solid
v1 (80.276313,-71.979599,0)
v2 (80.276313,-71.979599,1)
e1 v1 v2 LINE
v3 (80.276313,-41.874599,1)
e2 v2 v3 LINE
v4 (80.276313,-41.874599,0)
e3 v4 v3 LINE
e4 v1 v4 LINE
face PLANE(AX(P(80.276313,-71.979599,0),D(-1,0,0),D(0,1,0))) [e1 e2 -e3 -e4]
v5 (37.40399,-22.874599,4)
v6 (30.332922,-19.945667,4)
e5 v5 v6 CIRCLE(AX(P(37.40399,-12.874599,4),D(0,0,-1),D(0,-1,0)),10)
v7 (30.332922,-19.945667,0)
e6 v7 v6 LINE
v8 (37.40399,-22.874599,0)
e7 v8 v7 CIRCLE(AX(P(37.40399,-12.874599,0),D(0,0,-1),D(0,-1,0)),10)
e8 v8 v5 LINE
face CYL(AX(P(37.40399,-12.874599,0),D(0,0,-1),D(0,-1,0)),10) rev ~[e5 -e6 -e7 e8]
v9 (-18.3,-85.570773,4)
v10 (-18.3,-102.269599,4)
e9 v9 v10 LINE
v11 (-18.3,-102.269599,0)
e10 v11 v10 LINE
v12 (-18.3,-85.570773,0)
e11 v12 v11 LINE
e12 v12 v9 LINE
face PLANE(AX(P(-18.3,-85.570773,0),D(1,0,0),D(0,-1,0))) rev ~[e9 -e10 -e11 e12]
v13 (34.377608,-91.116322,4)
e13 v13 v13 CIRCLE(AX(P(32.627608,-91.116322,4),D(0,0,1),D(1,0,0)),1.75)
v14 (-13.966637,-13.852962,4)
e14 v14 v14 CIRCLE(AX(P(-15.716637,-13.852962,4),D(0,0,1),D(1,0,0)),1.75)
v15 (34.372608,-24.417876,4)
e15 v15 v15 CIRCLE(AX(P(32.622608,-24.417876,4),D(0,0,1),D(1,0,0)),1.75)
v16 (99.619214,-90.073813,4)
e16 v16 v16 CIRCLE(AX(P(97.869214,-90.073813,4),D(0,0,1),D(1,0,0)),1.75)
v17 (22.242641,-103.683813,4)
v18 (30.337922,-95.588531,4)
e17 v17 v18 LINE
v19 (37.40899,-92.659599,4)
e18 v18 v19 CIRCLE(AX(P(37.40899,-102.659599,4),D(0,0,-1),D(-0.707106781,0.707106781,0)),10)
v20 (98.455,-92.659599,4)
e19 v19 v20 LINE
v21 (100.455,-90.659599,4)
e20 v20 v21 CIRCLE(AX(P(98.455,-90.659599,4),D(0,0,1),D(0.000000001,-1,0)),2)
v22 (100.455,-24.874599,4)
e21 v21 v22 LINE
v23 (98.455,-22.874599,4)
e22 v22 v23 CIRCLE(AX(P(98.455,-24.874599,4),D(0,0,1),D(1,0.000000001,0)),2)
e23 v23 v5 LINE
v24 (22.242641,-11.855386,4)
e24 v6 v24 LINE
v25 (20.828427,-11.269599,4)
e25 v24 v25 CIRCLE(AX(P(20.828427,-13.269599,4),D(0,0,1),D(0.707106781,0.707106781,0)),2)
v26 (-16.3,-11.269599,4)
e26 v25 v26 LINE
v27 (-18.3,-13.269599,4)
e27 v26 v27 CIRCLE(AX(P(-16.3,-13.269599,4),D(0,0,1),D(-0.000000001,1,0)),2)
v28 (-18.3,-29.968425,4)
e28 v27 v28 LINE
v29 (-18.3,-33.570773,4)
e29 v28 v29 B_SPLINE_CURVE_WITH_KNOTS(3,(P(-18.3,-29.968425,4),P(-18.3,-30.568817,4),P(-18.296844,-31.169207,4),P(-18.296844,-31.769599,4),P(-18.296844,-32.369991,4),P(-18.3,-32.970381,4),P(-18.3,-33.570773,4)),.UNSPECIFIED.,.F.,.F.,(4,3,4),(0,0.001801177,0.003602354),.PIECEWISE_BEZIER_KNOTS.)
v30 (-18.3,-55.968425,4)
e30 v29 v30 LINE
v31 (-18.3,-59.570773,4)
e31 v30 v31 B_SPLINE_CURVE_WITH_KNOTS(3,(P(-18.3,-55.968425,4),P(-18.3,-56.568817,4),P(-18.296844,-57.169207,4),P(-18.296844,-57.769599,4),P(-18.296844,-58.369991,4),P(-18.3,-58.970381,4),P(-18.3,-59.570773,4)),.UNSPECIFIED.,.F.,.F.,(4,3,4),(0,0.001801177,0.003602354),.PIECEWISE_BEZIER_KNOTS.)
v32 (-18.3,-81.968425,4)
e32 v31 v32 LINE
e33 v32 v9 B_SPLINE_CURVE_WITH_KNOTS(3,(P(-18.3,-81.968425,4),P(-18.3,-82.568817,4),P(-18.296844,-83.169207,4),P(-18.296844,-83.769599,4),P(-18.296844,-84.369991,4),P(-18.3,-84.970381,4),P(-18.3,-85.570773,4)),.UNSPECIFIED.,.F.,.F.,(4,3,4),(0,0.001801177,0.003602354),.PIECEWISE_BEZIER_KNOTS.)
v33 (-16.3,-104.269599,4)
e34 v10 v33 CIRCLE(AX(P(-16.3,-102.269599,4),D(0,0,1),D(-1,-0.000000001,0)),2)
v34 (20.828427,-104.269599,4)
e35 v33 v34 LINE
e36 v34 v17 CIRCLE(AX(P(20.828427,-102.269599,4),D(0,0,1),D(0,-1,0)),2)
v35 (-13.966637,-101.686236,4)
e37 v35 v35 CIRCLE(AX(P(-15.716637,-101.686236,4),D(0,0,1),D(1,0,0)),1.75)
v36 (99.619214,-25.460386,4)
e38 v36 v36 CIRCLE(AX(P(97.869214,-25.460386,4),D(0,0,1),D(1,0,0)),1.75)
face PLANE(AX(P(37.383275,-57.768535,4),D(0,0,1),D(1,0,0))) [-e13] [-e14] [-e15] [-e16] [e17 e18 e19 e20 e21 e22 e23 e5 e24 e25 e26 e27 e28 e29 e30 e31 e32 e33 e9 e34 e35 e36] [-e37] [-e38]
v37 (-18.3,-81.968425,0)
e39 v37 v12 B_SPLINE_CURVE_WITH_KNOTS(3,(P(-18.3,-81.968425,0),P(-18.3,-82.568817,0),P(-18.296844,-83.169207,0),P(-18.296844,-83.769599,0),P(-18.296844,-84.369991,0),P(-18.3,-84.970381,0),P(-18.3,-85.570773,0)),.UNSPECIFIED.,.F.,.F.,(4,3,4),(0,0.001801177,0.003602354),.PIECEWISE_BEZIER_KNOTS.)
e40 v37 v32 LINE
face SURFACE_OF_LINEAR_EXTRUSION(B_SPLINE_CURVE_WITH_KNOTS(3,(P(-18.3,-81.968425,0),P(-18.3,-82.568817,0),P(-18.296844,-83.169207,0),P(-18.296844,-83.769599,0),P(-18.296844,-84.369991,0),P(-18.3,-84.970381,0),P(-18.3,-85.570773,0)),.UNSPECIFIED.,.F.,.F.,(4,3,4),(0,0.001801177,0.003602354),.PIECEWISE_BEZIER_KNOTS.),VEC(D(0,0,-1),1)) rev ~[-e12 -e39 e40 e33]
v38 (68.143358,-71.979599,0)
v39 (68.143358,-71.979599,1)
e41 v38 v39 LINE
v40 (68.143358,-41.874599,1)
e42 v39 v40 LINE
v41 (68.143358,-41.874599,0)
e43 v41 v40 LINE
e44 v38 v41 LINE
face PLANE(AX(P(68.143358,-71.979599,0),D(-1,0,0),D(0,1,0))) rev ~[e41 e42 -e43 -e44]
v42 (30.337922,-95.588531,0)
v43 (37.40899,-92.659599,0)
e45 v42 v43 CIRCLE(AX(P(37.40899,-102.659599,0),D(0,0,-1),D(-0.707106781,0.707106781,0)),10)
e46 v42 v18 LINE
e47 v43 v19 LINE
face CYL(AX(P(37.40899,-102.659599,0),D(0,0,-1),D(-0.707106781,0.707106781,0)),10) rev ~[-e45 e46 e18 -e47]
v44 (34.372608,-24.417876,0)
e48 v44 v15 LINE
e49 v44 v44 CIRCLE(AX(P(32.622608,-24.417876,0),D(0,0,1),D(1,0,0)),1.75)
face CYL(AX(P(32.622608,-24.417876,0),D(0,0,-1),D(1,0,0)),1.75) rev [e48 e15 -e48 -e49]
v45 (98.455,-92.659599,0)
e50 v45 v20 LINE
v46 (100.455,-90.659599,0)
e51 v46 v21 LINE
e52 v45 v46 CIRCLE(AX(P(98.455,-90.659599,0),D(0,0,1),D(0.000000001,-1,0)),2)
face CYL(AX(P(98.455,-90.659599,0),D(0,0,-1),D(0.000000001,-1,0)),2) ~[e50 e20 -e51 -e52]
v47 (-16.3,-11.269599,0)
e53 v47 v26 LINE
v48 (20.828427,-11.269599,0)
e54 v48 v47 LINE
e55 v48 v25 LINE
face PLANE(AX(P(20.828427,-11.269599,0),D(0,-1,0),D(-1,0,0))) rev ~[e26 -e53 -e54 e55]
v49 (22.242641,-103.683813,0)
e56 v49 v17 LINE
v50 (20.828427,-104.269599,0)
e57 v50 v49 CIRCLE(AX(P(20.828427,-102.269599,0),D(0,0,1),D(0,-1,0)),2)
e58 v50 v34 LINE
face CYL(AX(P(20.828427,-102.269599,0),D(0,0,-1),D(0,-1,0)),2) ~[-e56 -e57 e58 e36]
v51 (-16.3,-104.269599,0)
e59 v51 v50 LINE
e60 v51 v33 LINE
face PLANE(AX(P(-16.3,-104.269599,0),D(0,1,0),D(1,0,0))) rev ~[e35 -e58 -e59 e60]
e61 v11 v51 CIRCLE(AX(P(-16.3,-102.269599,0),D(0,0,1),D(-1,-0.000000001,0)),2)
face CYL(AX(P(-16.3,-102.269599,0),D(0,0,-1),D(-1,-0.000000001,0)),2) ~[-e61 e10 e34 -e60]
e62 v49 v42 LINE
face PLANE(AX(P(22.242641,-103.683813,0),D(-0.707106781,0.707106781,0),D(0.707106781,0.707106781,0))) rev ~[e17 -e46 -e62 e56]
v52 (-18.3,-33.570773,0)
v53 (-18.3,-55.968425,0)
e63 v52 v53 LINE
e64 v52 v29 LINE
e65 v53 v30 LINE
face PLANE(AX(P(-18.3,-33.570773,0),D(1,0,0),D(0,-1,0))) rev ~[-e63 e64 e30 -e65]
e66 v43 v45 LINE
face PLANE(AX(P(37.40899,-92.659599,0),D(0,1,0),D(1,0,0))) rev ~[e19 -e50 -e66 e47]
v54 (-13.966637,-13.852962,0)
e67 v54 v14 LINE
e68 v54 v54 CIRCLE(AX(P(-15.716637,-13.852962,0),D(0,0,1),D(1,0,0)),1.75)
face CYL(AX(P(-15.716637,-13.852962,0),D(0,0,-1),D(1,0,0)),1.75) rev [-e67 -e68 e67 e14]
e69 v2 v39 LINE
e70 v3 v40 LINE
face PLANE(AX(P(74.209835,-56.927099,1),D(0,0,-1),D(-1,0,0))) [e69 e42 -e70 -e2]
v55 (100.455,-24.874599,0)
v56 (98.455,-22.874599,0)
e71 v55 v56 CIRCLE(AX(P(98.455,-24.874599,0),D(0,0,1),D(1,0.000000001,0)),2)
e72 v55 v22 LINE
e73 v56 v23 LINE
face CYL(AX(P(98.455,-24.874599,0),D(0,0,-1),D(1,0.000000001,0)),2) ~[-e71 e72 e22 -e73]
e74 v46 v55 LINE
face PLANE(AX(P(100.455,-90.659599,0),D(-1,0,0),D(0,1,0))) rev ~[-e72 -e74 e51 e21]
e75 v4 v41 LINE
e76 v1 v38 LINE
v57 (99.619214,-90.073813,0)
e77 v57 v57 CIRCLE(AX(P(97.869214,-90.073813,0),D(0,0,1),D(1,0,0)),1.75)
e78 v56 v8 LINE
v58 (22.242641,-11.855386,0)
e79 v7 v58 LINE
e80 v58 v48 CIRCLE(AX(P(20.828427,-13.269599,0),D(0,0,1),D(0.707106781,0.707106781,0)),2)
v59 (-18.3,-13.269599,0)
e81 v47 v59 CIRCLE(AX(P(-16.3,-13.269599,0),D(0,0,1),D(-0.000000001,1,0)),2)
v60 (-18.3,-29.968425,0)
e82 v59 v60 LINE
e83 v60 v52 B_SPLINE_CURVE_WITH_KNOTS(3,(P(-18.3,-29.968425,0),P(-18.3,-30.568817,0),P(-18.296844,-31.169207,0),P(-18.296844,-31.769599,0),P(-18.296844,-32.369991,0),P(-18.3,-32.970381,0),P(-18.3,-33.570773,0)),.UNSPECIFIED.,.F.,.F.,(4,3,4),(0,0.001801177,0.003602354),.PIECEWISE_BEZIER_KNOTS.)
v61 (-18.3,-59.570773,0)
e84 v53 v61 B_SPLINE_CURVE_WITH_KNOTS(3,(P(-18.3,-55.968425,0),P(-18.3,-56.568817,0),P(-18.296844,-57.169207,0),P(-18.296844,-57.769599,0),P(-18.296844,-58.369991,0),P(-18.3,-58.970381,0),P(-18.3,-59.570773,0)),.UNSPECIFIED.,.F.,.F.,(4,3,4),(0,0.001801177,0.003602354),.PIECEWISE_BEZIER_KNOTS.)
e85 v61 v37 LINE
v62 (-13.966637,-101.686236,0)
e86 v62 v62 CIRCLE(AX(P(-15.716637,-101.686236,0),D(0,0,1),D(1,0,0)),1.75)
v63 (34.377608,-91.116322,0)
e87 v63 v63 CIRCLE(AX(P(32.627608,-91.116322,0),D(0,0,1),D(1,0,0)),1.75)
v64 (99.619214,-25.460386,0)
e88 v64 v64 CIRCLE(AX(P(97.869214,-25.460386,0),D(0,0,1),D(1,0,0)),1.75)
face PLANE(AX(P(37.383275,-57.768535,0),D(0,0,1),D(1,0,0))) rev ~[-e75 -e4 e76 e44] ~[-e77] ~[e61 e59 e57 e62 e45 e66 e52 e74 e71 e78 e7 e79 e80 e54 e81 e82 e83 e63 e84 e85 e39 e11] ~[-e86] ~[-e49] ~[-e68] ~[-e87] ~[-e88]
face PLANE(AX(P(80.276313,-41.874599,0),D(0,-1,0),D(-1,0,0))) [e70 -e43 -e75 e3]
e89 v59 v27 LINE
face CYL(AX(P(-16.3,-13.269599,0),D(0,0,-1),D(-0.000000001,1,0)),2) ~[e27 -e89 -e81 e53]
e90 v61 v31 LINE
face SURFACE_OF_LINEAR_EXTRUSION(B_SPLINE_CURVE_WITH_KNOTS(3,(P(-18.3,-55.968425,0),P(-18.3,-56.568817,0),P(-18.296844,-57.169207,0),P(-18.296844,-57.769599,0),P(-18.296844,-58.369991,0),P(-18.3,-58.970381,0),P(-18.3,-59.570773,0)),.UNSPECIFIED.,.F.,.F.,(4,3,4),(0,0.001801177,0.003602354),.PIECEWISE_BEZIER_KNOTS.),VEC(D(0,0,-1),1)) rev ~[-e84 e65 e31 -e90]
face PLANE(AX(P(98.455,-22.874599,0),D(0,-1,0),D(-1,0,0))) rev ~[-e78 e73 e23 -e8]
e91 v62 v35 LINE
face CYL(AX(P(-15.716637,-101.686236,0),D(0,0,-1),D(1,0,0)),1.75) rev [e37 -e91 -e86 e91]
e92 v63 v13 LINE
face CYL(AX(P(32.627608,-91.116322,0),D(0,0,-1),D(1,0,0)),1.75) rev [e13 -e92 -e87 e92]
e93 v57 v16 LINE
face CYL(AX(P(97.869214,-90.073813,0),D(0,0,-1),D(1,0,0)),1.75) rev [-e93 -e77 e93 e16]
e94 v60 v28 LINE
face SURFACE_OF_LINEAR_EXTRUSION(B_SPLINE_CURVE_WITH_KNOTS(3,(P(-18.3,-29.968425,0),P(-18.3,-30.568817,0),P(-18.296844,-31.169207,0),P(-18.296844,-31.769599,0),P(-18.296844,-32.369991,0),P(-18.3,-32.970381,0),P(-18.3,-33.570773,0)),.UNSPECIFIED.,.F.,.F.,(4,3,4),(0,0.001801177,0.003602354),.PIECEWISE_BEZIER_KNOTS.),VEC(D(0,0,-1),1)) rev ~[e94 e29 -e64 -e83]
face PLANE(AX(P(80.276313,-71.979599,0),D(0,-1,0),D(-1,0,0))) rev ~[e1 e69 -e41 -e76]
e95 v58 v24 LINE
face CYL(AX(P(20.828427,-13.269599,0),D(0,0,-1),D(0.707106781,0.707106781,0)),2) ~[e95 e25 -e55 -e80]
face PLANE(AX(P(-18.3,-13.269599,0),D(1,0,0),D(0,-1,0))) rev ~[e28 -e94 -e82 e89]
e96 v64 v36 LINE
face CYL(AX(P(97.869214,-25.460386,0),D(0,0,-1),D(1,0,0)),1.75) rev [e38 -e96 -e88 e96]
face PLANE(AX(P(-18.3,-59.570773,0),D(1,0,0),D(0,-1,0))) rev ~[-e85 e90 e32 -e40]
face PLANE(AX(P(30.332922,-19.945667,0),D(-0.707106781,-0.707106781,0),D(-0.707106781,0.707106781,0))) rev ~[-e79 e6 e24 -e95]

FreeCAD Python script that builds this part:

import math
import FreeCAD as App
import Part
import Sketcher
from FreeCAD import Vector
Q = App.Units.Quantity

doc = App.newDocument("Part")
body = doc.addObject("PartDesign::Body", "Body")

# Sketch on XY plane
sketch1 = doc.addObject("Sketcher::SketchObject", "Sketch")
body.addObject(sketch1)
sketch1.AttachmentSupport = (doc.XY_Plane, [""])
sketch1.MapMode = "FlatFace"
sketch1.addGeometry([
    Part.LineSegment(Vector(22.242641, -103.683813, 0), Vector(30.337922, -95.588531, 0)),  # 0
    Part.ArcOfCircle(Part.Circle(Vector(37.40899, -102.659599, 0), Vector(0, 0, 1), 10), math.radians(90), math.radians(135)),  # 1
    Part.LineSegment(Vector(37.40899, -92.659599, 0), Vector(98.455, -92.659599, 0)),  # 2
    Part.ArcOfCircle(Part.Circle(Vector(98.455, -90.659599, 0), Vector(0, 0, 1), 2), math.radians(-90), math.radians(0)),  # 3
    Part.LineSegment(Vector(100.455, -90.659599, 0), Vector(100.455, -24.874599, 0)),  # 4
    Part.ArcOfCircle(Part.Circle(Vector(98.455, -24.874599, 0), Vector(0, 0, 1), 2), math.radians(0), math.radians(90)),  # 5
    Part.LineSegment(Vector(98.455, -22.874599, 0), Vector(37.40399, -22.874599, 0)),  # 6
    Part.ArcOfCircle(Part.Circle(Vector(37.40399, -12.874599, 0), Vector(0, 0, 1), 10), math.radians(-135), math.radians(-90)),  # 7
    Part.LineSegment(Vector(30.332922, -19.945667, 0), Vector(22.242641, -11.855386, 0)),  # 8
    Part.ArcOfCircle(Part.Circle(Vector(20.828427, -13.269599, 0), Vector(0, 0, 1), 2), math.radians(45), math.radians(90)),  # 9
    Part.LineSegment(Vector(20.828427, -11.269599, 0), Vector(-16.3, -11.269599, 0)),  # 10
    Part.ArcOfCircle(Part.Circle(Vector(-16.3, -13.269599, 0), Vector(0, 0, 1), 2), math.radians(90), math.radians(180)),  # 11
    Part.LineSegment(Vector(-18.3, -13.269599, 0), Vector(-18.3, -29.968425, 0)),  # 12
    Part.BSplineCurve([Vector(-18.3, -29.968425, 0), Vector(-18.3, -30.568817, 0), Vector(-18.296844, -31.169207, 0), Vector(-18.296844, -31.769599, 0), Vector(-18.296844, -32.369991, 0), Vector(-18.3, -32.970381, 0), Vector(-18.3, -33.570773, 0)], [4, 3, 4], [0, 0.001801177, 0.003602354], False, 3, [1, 1, 1, 1, 1, 1, 1], False),  # 13
    Part.LineSegment(Vector(-18.3, -33.570773, 0), Vector(-18.3, -55.968425, 0)),  # 14
    Part.BSplineCurve([Vector(-18.3, -55.968425, 0), Vector(-18.3, -56.568817, 0), Vector(-18.296844, -57.169207, 0), Vector(-18.296844, -57.769599, 0), Vector(-18.296844, -58.369991, 0), Vector(-18.3, -58.970381, 0), Vector(-18.3, -59.570773, 0)], [4, 3, 4], [0, 0.001801177, 0.003602354], False, 3, [1, 1, 1, 1, 1, 1, 1], False),  # 15
    Part.LineSegment(Vector(-18.3, -59.570773, 0), Vector(-18.3, -81.968425, 0)),  # 16
    Part.BSplineCurve([Vector(-18.3, -81.968425, 0), Vector(-18.3, -82.568817, 0), Vector(-18.296844, -83.169207, 0), Vector(-18.296844, -83.769599, 0), Vector(-18.296844, -84.369991, 0), Vector(-18.3, -84.970381, 0), Vector(-18.3, -85.570773, 0)], [4, 3, 4], [0, 0.001801177, 0.003602354], False, 3, [1, 1, 1, 1, 1, 1, 1], False),  # 17
    Part.LineSegment(Vector(-18.3, -85.570773, 0), Vector(-18.3, -102.269599, 0)),  # 18
    Part.ArcOfCircle(Part.Circle(Vector(-16.3, -102.269599, 0), Vector(0, 0, 1), 2), math.radians(-180), math.radians(-90)),  # 19
    Part.LineSegment(Vector(-16.3, -104.269599, 0), Vector(20.828427, -104.269599, 0)),  # 20
    Part.ArcOfCircle(Part.Circle(Vector(20.828427, -102.269599, 0), Vector(0, 0, 1), 2), math.radians(-90), math.radians(-45)),  # 21
    Part.Circle(Vector(-15.716637, -101.686236, 0), Vector(0, 0, 1), 1.75),  # 22
    Part.Circle(Vector(32.627608, -91.116322, 0), Vector(0, 0, 1), 1.75),  # 23
    Part.Circle(Vector(97.869214, -90.073813, 0), Vector(0, 0, 1), 1.75),  # 24
    Part.Circle(Vector(-15.716637, -13.852962, 0), Vector(0, 0, 1), 1.75),  # 25
    Part.Circle(Vector(32.622608, -24.417876, 0), Vector(0, 0, 1), 1.75),  # 26
    Part.Circle(Vector(97.869214, -25.460386, 0), Vector(0, 0, 1), 1.75),  # 27
], False)
sketch1.addConstraint([
    Sketcher.Constraint("Block", 13),
    Sketcher.Constraint("Block", 15),
    Sketcher.Constraint("Block", 17),
    Sketcher.Constraint("Coincident", 0, 2, 1, 2),
    Sketcher.Constraint("Coincident", 1, 1, 2, 1),
    Sketcher.Constraint("Coincident", 2, 2, 3, 1),
    Sketcher.Constraint("Coincident", 3, 2, 4, 1),
    Sketcher.Constraint("Coincident", 4, 2, 5, 1),
    Sketcher.Constraint("Coincident", 5, 2, 6, 1),
    Sketcher.Constraint("Coincident", 6, 2, 7, 2),
    Sketcher.Constraint("Coincident", 7, 1, 8, 1),
    Sketcher.Constraint("Coincident", 8, 2, 9, 1),
    Sketcher.Constraint("Coincident", 9, 2, 10, 1),
    Sketcher.Constraint("Coincident", 10, 2, 11, 1),
    Sketcher.Constraint("Coincident", 11, 2, 12, 1),
    Sketcher.Constraint("Coincident", 12, 2, 13, 1),
    Sketcher.Constraint("Coincident", 13, 2, 14, 1),
    Sketcher.Constraint("Coincident", 14, 2, 15, 1),
    Sketcher.Constraint("Coincident", 15, 2, 16, 1),
    Sketcher.Constraint("Coincident", 16, 2, 17, 1),
    Sketcher.Constraint("Coincident", 17, 2, 18, 1),
    Sketcher.Constraint("Coincident", 18, 2, 19, 1),
    Sketcher.Constraint("Coincident", 19, 2, 20, 1),
    Sketcher.Constraint("Coincident", 20, 2, 21, 1),
    Sketcher.Constraint("Coincident", 21, 2, 0, 1),
    Sketcher.Constraint("Horizontal", 2),
    Sketcher.Constraint("Vertical", 4),
    Sketcher.Constraint("Horizontal", 6),
    Sketcher.Constraint("Horizontal", 10),
    Sketcher.Constraint("Vertical", 12),
    Sketcher.Constraint("Vertical", 18),
    Sketcher.Constraint("Horizontal", 20),
    Sketcher.Constraint("Radius", 1, Q("10 mm")),
    Sketcher.Constraint("Radius", 3, Q("2 mm")),
    Sketcher.Constraint("Radius", 5, Q("2 mm")),
    Sketcher.Constraint("Radius", 7, Q("10 mm")),
    Sketcher.Constraint("Radius", 9, Q("2 mm")),
    Sketcher.Constraint("Radius", 11, Q("2 mm")),
    Sketcher.Constraint("Radius", 19, Q("2 mm")),
    Sketcher.Constraint("Radius", 21, Q("2 mm")),
    Sketcher.Constraint("Diameter", 22, Q("3.5 mm")),
    Sketcher.Constraint("Diameter", 23, Q("3.5 mm")),
    Sketcher.Constraint("Diameter", 24, Q("3.5 mm")),
    Sketcher.Constraint("Diameter", 25, Q("3.5 mm")),
    Sketcher.Constraint("Diameter", 26, Q("3.5 mm")),
    Sketcher.Constraint("Diameter", 27, Q("3.5 mm")),
    Sketcher.Constraint("DistanceY", 19, 3, 11, 3, Q("89 mm")),
    Sketcher.Constraint("DistanceX", 2, 2, 3, 2, Q("2 mm")),
    Sketcher.Constraint("DistanceY", 2, 2, 3, 2, Q("2 mm")),
    Sketcher.Constraint("DistanceY", 4, 2, 7, 3, Q("12 mm")),
    Sketcher.Constraint("DistanceX", 5, 2, 4, 2, Q("2 mm")),
    Sketcher.Constraint("DistanceX", 11, 2, 10, 2, Q("2 mm")),
    Sketcher.Constraint("DistanceY", 11, 2, 10, 2, Q("2 mm")),
    Sketcher.Constraint("DistanceX", 18, 2, 19, 2, Q("2 mm")),
    Sketcher.Constraint("DistanceY", 19, 2, 18, 2, Q("2 mm")),
    Sketcher.Constraint("DistanceY", 4, 1, 4, 2, Q("65.785 mm")),
    Sketcher.Constraint("DistanceY", 1, 3, 9, 3, Q("89.39 mm")),
    Sketcher.Constraint("DistanceX", -1, 1, 3, 3, Q("98.455 mm")),
    Sketcher.Constraint("DistanceX", 7, 3, 1, 3, Q("0.005 mm")),
    Sketcher.Constraint("DistanceX", 2, 1, 2, 2, Q("61.04601 mm")),
    Sketcher.Constraint("DistanceX", 6, 2, 6, 1, Q("61.05101 mm")),
    Sketcher.Constraint("DistanceY", 1, 3, -1, 1, Q("102.659599 mm")),
    Sketcher.Constraint("DistanceX", 10, 2, 10, 1, Q("37.128427 mm")),
    Sketcher.Constraint("DistanceX", 20, 1, 20, 2, Q("37.128427 mm")),
    Sketcher.Constraint("DistanceX", -1, 1, 1, 3, Q("37.40899 mm")),
    Sketcher.Constraint("DistanceY", 23, 3, -1, 1, Q("91.116322 mm")),
    Sketcher.Constraint("DistanceY", 0, 2, -1, 1, Q("95.588531 mm")),
    Sketcher.Constraint("DistanceX", -1, 1, 8, 2, Q("22.242641 mm")),
    Sketcher.Constraint("DistanceX", -1, 1, 21, 2, Q("22.242641 mm")),
    Sketcher.Constraint("DistanceX", 23, 3, 1, 3, Q("4.781382 mm")),
    Sketcher.Constraint("DistanceX", 21, 3, 23, 3, Q("11.799181 mm")),
    Sketcher.Constraint("DistanceY", 23, 3, 24, 3, Q("1.042509 mm")),
    Sketcher.Constraint("DistanceX", 26, 3, 7, 3, Q("4.781382 mm")),
    Sketcher.Constraint("DistanceX", 9, 3, 26, 3, Q("11.794181 mm")),
    Sketcher.Constraint("DistanceY", 27, 3, 26, 3, Q("1.042509 mm")),
    Sketcher.Constraint("DistanceX", 22, 3, 0, 2, Q("46.054559 mm")),
    Sketcher.Constraint("DistanceY", 26, 3, 7, 1, Q("4.472209 mm")),
    Sketcher.Constraint("DistanceX", 25, 3, 7, 1, Q("46.049559 mm")),
    Sketcher.Constraint("DistanceX", 8, 2, 7, 1, Q("8.090281 mm")),
    Sketcher.Constraint("DistanceY", 22, 3, 16, 2, Q("19.717811 mm")),
    Sketcher.Constraint("DistanceX", -1, 1, 24, 3, Q("97.869214 mm")),
    Sketcher.Constraint("DistanceY", 25, 3, -1, 1, Q("13.852962 mm")),
    Sketcher.Constraint("DistanceX", -1, 1, 27, 3, Q("97.869214 mm")),
])
pad1 = doc.addObject("PartDesign::Pad", "Pad")
body.addObject(pad1)
pad1.Profile = sketch1
pad1.Length = 4

# Sketch on XY plane
sketch2 = doc.addObject("Sketcher::SketchObject", "Sketch001")
body.addObject(sketch2)
sketch2.AttachmentSupport = (doc.XY_Plane, [""])
sketch2.MapMode = "FlatFace"
sketch2.addGeometry([
    Part.LineSegment(Vector(80, -42, 0), Vector(80, -72, 0)),
    Part.LineSegment(Vector(80, -72, 0), Vector(68, -72, 0)),
    Part.LineSegment(Vector(68, -72, 0), Vector(68, -42, 0)),
    Part.LineSegment(Vector(68, -42, 0), Vector(80, -42, 0)),
], False)
sketch2.addConstraint([
    Sketcher.Constraint("Coincident", 0, 2, 1, 1),
    Sketcher.Constraint("Coincident", 1, 2, 2, 1),
    Sketcher.Constraint("Coincident", 2, 2, 3, 1),
    Sketcher.Constraint("Coincident", 3, 2, 0, 1),
    Sketcher.Constraint("Vertical", 0),
    Sketcher.Constraint("Horizontal", 1),
    Sketcher.Constraint("Vertical", 2),
    Sketcher.Constraint("Horizontal", 3),
    Sketcher.Constraint("DistanceY", 0, 2, 0, 1, Q("30.105 mm")),
    Sketcher.Constraint("DistanceY", 0, 2, -1, 1, Q("71.979599 mm")),
    Sketcher.Constraint("DistanceX", 1, 2, 1, 1, Q("12.132955 mm")),
    Sketcher.Constraint("DistanceX", -1, 1, 0, 2, Q("80.276313 mm")),
])
pocket1 = doc.addObject("PartDesign::Pocket", "Pocket")
body.addObject(pocket1)
pocket1.Profile = sketch2
pocket1.Length = 1
pocket1.Reversed = True

doc.recompute()
